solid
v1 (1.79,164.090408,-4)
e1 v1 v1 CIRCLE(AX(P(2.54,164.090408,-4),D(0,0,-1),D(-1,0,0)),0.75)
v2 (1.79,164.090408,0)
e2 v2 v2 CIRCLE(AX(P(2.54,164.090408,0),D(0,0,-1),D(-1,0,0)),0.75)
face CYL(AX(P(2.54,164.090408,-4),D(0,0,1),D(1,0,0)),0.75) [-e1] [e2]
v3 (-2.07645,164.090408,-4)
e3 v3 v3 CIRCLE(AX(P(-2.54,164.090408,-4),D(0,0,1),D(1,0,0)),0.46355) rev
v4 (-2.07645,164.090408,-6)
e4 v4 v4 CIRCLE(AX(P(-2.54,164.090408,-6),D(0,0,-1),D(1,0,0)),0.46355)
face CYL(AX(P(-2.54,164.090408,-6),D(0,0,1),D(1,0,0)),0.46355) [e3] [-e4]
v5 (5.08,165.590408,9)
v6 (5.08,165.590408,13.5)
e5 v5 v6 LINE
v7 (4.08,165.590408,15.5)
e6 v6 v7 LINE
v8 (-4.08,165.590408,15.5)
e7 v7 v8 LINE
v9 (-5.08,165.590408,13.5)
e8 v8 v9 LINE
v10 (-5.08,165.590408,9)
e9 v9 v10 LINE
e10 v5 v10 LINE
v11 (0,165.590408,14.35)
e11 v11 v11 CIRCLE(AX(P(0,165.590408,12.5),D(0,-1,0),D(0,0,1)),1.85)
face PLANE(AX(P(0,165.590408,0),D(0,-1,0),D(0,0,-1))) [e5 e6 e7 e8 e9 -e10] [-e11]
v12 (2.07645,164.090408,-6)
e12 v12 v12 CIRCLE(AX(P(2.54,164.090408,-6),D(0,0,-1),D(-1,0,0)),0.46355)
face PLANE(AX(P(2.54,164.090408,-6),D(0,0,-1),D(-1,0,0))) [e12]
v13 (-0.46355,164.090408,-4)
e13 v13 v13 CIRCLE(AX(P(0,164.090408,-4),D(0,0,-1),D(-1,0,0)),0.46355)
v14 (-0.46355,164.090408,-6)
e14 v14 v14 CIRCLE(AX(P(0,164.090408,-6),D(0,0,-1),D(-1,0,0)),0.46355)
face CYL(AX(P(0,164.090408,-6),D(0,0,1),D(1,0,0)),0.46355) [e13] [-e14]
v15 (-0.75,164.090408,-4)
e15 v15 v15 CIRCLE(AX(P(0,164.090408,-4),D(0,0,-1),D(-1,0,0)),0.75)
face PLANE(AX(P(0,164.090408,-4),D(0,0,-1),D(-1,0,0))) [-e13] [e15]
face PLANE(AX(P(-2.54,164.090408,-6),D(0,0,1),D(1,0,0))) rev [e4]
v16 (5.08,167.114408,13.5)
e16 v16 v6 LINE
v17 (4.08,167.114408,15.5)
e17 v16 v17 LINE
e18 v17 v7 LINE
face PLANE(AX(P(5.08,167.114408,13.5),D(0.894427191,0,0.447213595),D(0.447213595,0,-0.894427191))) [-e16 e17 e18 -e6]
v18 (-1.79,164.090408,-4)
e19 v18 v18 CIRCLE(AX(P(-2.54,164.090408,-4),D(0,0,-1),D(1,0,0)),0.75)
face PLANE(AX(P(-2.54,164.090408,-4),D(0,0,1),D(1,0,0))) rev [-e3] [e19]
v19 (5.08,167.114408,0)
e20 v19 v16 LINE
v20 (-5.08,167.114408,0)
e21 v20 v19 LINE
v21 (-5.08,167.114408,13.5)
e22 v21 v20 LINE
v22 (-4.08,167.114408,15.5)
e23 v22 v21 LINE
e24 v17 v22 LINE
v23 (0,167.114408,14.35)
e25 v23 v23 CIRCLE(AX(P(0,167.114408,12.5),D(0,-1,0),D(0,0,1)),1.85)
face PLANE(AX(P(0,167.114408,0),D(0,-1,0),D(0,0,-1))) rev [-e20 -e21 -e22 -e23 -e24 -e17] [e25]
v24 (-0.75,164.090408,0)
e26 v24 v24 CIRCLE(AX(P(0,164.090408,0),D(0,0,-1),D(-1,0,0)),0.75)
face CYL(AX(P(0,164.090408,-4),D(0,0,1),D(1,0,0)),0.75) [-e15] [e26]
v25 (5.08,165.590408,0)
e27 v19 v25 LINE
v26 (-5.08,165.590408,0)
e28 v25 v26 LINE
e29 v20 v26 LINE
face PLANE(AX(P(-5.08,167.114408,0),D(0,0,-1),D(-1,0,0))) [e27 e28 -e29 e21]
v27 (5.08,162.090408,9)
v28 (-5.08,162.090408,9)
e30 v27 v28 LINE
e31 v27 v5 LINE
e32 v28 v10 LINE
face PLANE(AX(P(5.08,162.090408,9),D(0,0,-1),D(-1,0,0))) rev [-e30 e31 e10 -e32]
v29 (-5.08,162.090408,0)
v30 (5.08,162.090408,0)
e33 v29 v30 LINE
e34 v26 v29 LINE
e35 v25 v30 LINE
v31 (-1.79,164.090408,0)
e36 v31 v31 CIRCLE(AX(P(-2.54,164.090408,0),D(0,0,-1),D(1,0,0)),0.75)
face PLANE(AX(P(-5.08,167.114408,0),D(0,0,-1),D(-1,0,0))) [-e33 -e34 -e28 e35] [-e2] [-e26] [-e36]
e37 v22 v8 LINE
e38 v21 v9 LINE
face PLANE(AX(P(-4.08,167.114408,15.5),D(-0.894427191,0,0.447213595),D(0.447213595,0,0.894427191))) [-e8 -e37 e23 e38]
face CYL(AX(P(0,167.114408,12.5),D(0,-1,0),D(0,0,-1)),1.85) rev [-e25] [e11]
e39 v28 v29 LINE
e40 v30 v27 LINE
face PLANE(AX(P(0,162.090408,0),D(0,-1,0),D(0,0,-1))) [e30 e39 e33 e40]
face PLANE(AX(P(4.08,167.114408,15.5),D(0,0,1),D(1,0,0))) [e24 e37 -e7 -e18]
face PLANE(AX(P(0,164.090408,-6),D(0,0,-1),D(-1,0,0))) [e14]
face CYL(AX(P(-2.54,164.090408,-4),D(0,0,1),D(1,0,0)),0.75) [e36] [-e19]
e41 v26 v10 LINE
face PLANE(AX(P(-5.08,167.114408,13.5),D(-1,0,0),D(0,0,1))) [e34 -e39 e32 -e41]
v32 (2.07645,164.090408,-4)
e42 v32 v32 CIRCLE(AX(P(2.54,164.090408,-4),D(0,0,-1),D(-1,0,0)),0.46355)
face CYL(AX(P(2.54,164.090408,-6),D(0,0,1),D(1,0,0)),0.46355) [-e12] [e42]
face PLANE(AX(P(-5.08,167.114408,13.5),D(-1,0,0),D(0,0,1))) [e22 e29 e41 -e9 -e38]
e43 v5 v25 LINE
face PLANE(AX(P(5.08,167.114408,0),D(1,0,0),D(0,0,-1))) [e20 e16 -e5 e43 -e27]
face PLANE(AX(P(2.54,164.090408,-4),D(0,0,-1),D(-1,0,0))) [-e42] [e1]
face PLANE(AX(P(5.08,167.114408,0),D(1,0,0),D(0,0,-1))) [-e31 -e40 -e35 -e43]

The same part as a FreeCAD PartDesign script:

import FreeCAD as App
import Part
import Sketcher

V = App.Vector
Q = App.Units.Quantity


def add_polygon(sketch, points):
    """Adds a closed chain of lines whose ends are joined by coincident constraints."""
    first, n = sketch.GeometryCount, len(points)
    for a, b in zip(points, points[1:] + points[:1]):
        sketch.addGeometry(Part.LineSegment(App.Vector(*a, 0), App.Vector(*b, 0)), False)
    for i in range(n):
        sketch.addConstraint(Sketcher.Constraint("Coincident", first + i, 2, first + (i + 1) % n, 1))

doc = App.newDocument("Part")
body = doc.addObject("PartDesign::Body", "Body")

# Sketch on XZ plane
sketch1 = body.newObject("Sketcher::SketchObject", "Sketch")
sketch1.AttachmentSupport = (doc.getObject("XZ_Plane"), [""])
sketch1.MapMode = "FlatFace"
sketch1.AttachmentOffset = App.Placement(V(0, 0, -165.590408), App.Rotation())
add_polygon(sketch1, [(-4.1, 15.5), (-5.1, 13.5), (-5.1, 0), (5.1, 0), (5.1, 13.5), (4.1, 15.5)])  # lines 0-5
sketch1.addGeometry(Part.Circle(V(0, 12.5, 0), V(0, 0, 1), 1.9), False)  # 6
sketch1.addConstraint([
    Sketcher.Constraint("Vertical", 1),
    Sketcher.Constraint("Horizontal", 2),
    Sketcher.Constraint("Vertical", 3),
    Sketcher.Constraint("Horizontal", 5),
    Sketcher.Constraint("Symmetric", 1, 2, 2, 2, -1, 1),
    Sketcher.Constraint("PointOnObject", 6, 3, -2),
    Sketcher.Constraint("Horizontal", 0, 2, 3, 2),
    Sketcher.Constraint("Equal", 0, 4),
    Sketcher.Constraint("Diameter", 6, Q("3.7 mm")),
    Sketcher.Constraint("DistanceY", 1, 2, 1, 1, Q("13.5 mm")),
    Sketcher.Constraint("DistanceY", 6, 3, 0, 2, Q("1 mm")),
    Sketcher.Constraint("DistanceX", 4, 2, 3, 2, Q("1 mm")),
    Sketcher.Constraint("DistanceY", 3, 2, 4, 2, Q("2 mm")),
    Sketcher.Constraint("DistanceX", 2, 1, 2, 2, Q("10.16 mm")),
])
pad1 = body.newObject("PartDesign::Pad", "Pad")
pad1.Profile = sketch1
pad1.Length = 1.524
pad1.Reversed = True

# Sketch on XZ plane
sketch2 = body.newObject("Sketcher::SketchObject", "Sketch001")
sketch2.AttachmentSupport = (doc.getObject("XZ_Plane"), [""])
sketch2.MapMode = "FlatFace"
sketch2.AttachmentOffset = App.Placement(V(0, 0, -165.590408), App.Rotation())
add_polygon(sketch2, [(-5, 9), (-5, 0), (5, 0), (5, 9)])  # lines 0-3
sketch2.addConstraint([
    Sketcher.Constraint("Vertical", 0),
    Sketcher.Constraint("Horizontal", 1),
    Sketcher.Constraint("Vertical", 2),
    Sketcher.Constraint("Horizontal", 3),
    Sketcher.Constraint("Symmetric", 0, 2, 1, 2, -1, 1),
    Sketcher.Constraint("DistanceY", 0, 2, 0, 1, Q("9 mm")),
    Sketcher.Constraint("DistanceX", 1, 1, 1, 2, Q("10.16 mm")),
])
pad2 = body.newObject("PartDesign::Pad", "Pad001")
pad2.Profile = sketch2
pad2.Length = 3.5

# Sketch on XY plane
sketch3 = body.newObject("Sketcher::SketchObject", "Sketch002")
sketch3.AttachmentSupport = (doc.getObject("XY_Plane"), [""])
sketch3.MapMode = "FlatFace"
sketch3.addGeometry([
    Part.Circle(V(-2.5, 164.1, 0), V(0, 0, 1), 0.8),
    Part.Circle(V(0, 164.1, 0), V(0, 0, 1), 0.8),
    Part.Circle(V(2.5, 164.1, 0), V(0, 0, 1), 0.8),
], False)
sketch3.addConstraint([
    Sketcher.Constraint("Equal", 0, 1),
    Sketcher.Constraint("Equal", 1, 2),
    Sketcher.Constraint("Symmetric", 0, 3, 2, 3, -2),
    Sketcher.Constraint("PointOnObject", 1, 3, -2),
    Sketcher.Constraint("Horizontal", 0, 3, 1, 3),
    Sketcher.Constraint("Diameter", 0, Q("1.5 mm")),
    Sketcher.Constraint("DistanceX", 0, 3, -1, 1, Q("2.54 mm")),
    Sketcher.Constraint("DistanceY", -1, 1, 0, 3, Q("164.090408 mm")),
])
pad3 = body.newObject("PartDesign::Pad", "Pad002")
pad3.Profile = sketch3
pad3.Length = 4
pad3.Reversed = True

# Sketch on XY plane
sketch4 = body.newObject("Sketcher::SketchObject", "Sketch003")
sketch4.AttachmentSupport = (doc.getObject("XY_Plane"), [""])
sketch4.MapMode = "FlatFace"
sketch4.AttachmentOffset = App.Placement(V(0, 0, -4), App.Rotation())
sketch4.addGeometry([
    Part.Circle(V(-2.54, 164.09, 0), V(0, 0, 1), 0.46),
    Part.Circle(V(0, 164.09, 0), V(0, 0, 1), 0.46),
    Part.Circle(V(2.54, 164.09, 0), V(0, 0, 1), 0.46),
], False)
sketch4.addConstraint([
    Sketcher.Constraint("Equal", 0, 1),
    Sketcher.Constraint("Equal", 1, 2),
    Sketcher.Constraint("Symmetric", 0, 3, 2, 3, -2),
    Sketcher.Constraint("PointOnObject", 1, 3, -2),
    Sketcher.Constraint("Horizontal", 0, 3, 1, 3),
    Sketcher.Constraint("Diameter", 0, Q("0.9271 mm")),
    Sketcher.Constraint("DistanceX", 0, 3, -1, 1, Q("2.54 mm")),
    Sketcher.Constraint("DistanceY", -1, 1, 0, 3, Q("164.090408 mm")),
])
pad4 = body.newObject("PartDesign::Pad", "Pad003")
pad4.Profile = sketch4
pad4.Length = 2
pad4.Reversed = True

doc.recompute()
